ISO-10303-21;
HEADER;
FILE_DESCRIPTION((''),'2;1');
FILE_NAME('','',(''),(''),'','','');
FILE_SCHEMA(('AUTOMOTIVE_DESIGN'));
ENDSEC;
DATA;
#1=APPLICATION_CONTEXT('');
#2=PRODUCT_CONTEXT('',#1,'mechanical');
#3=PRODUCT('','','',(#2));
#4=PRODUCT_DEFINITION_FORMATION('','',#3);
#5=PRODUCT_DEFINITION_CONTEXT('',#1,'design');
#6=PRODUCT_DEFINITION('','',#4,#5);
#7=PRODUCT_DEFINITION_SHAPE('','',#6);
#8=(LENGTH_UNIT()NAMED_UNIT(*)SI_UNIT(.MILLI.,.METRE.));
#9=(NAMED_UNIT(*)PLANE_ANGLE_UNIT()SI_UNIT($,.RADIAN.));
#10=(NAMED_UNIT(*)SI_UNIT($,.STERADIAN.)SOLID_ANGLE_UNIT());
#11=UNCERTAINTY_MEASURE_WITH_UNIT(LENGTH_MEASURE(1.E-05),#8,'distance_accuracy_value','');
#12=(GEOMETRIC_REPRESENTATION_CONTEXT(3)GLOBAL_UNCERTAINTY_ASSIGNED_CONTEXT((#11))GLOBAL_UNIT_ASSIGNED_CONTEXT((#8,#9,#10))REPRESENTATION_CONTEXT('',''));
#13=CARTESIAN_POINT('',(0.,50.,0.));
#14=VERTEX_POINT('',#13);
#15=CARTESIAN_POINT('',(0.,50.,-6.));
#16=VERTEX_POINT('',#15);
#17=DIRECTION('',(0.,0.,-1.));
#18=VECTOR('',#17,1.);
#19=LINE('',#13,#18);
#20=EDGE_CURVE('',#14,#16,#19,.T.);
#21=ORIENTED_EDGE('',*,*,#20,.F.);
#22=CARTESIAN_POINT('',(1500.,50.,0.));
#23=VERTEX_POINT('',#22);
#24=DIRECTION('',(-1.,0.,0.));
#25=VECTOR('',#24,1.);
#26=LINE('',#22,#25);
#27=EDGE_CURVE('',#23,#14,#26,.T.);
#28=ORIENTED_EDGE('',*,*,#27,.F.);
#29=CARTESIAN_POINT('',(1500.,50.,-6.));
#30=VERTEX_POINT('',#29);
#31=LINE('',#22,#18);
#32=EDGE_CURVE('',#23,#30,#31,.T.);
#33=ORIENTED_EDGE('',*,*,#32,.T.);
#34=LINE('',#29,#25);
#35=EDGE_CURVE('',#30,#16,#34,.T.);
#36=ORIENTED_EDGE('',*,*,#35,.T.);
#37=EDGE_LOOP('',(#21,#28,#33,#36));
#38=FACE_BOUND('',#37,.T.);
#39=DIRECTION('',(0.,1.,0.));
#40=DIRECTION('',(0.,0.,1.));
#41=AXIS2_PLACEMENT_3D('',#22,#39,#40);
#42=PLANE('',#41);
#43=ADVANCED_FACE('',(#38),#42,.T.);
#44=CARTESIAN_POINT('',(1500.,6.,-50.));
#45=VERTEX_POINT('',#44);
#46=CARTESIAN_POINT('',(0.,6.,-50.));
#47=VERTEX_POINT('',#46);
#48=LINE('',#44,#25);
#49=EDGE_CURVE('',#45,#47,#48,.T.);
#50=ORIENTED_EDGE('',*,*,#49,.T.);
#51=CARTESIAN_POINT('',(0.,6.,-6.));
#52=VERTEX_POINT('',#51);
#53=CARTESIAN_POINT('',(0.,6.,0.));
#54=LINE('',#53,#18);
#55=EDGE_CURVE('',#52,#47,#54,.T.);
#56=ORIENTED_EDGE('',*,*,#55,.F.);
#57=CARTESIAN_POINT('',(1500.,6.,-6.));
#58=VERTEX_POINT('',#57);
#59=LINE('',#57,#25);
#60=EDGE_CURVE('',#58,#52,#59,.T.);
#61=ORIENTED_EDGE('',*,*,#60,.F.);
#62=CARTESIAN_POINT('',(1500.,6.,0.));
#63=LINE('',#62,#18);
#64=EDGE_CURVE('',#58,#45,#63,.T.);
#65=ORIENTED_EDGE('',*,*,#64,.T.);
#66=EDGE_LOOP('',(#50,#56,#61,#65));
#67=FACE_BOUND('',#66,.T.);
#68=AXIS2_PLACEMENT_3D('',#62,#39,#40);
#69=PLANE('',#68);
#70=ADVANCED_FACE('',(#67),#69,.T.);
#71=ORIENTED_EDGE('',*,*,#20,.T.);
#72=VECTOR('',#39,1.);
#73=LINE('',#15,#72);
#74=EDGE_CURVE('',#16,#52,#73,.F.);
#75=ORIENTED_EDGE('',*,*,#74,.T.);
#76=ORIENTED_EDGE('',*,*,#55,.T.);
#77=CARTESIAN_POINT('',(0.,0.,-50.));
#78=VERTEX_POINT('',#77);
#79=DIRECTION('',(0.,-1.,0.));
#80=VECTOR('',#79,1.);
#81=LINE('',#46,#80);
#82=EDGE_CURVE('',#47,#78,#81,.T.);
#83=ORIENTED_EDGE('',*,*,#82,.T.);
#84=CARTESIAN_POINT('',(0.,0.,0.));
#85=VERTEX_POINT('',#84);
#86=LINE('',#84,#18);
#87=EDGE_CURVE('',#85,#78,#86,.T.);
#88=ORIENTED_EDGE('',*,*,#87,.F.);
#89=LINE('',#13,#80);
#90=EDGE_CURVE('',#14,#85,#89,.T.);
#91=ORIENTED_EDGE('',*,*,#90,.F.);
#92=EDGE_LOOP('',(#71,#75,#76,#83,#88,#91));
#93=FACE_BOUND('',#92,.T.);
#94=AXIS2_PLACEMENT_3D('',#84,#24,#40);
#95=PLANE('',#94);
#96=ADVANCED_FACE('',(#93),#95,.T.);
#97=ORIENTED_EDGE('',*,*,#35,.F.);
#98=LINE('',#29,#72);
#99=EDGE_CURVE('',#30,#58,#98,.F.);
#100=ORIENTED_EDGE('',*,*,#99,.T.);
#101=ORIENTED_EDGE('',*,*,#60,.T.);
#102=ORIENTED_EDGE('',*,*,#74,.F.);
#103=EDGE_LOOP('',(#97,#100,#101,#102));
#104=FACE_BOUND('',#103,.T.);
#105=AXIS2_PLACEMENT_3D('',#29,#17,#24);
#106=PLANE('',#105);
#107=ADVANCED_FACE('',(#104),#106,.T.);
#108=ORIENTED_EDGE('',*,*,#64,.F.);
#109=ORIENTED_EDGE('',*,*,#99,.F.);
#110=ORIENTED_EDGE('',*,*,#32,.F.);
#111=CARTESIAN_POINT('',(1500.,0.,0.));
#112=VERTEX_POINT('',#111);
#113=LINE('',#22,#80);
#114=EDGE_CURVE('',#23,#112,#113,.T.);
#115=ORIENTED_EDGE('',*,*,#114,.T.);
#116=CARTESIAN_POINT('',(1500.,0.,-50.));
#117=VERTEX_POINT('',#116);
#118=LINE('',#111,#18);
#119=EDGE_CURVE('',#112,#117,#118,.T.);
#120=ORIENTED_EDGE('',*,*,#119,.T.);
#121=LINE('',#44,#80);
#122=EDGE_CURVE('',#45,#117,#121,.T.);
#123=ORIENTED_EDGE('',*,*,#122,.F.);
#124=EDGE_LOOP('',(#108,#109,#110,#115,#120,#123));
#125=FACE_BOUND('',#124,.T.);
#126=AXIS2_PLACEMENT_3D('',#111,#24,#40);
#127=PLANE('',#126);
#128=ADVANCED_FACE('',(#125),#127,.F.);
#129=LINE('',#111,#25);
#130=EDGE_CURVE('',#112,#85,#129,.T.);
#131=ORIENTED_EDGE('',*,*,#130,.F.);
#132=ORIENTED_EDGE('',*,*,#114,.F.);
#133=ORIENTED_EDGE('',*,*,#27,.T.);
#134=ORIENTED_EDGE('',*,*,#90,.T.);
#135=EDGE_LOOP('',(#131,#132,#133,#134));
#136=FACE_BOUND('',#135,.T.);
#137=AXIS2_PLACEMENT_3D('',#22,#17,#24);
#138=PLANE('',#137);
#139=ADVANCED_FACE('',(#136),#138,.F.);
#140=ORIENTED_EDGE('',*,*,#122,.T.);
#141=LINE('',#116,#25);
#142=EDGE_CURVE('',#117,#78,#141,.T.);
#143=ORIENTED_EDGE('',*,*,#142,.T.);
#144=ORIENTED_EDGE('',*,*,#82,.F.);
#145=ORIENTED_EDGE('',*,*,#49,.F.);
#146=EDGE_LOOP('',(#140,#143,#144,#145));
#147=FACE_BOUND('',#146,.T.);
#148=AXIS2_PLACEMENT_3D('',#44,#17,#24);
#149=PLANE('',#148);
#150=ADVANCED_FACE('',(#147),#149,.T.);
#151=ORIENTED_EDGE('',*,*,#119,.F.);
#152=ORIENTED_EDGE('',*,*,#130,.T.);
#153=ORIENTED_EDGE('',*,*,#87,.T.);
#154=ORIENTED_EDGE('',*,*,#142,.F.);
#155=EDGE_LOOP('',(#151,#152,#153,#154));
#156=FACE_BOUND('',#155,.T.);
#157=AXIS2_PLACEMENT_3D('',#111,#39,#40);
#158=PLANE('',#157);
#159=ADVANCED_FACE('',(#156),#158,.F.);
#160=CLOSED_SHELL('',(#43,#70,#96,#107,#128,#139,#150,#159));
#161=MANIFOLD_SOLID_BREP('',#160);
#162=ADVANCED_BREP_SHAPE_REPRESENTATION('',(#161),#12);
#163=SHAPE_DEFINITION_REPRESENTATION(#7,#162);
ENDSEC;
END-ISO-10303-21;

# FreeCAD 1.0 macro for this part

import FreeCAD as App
import Part
import Sketcher
from FreeCAD import Vector

doc = App.newDocument("Part")
params = doc.addObject("Spreadsheet::Sheet", "Params")
for row, (alias, value) in enumerate([
    ("sketch1_width", "50 mm"),
    ("sketch1_width2", "6 mm"),
    ("pad1_length", "1500 mm"),
], start=1):
    params.set(f"A{row}", alias)
    params.set(f"B{row}", "=" + value)
    params.setAlias(f"B{row}", alias)

body = doc.addObject("PartDesign::Body", "Body")

# Sketch on YZ plane
sketch1 = body.newObject("Sketcher::SketchObject", "Sketch")
sketch1.AttachmentSupport = (doc.getObject("YZ_Plane"), [""])
sketch1.MapMode = "FlatFace"
sketch1.addGeometry(Part.LineSegment(Vector(50, 0, 0), Vector(0, 0, 0)), False)
sketch1.addGeometry(Part.LineSegment(Vector(0, 0, 0), Vector(0, -50, 0)), False)
sketch1.addGeometry(Part.LineSegment(Vector(0, -50, 0), Vector(6, -50, 0)), False)
sketch1.addGeometry(Part.LineSegment(Vector(6, -50, 0), Vector(6, -6, 0)), False)
sketch1.addGeometry(Part.LineSegment(Vector(6, -6, 0), Vector(50, -6, 0)), False)
sketch1.addGeometry(Part.LineSegment(Vector(50, -6, 0), Vector(50, 0, 0)), False)
sketch1.addConstraint(Sketcher.Constraint("Coincident", 0, 2, 1, 1))
sketch1.addConstraint(Sketcher.Constraint("Coincident", 1, 2, 2, 1))
sketch1.addConstraint(Sketcher.Constraint("Coincident", 2, 2, 3, 1))
sketch1.addConstraint(Sketcher.Constraint("Coincident", 3, 2, 4, 1))
sketch1.addConstraint(Sketcher.Constraint("Coincident", 4, 2, 5, 1))
sketch1.addConstraint(Sketcher.Constraint("Coincident", 5, 2, 0, 1))
sketch1.addConstraint(Sketcher.Constraint("Horizontal", 0))
sketch1.addConstraint(Sketcher.Constraint("Vertical", 1))
sketch1.addConstraint(Sketcher.Constraint("Horizontal", 2))
sketch1.addConstraint(Sketcher.Constraint("Vertical", 3))
sketch1.addConstraint(Sketcher.Constraint("Horizontal", 4))
sketch1.addConstraint(Sketcher.Constraint("Vertical", 5))
sketch1.addConstraint(Sketcher.Constraint("Coincident", 0, 2, -1, 1))
sketch1.addConstraint(Sketcher.Constraint("Equal", 0, 1))
sketch1.addConstraint(Sketcher.Constraint("Equal", 4, 3))
sketch1.addConstraint(Sketcher.Constraint("DistanceX", 0, 2, 0, 1, 50.0))
sketch1.addConstraint(Sketcher.Constraint("DistanceX", 2, 1, 2, 2, 6.0))
sketch1.setExpression("Constraints[15]", "Params.sketch1_width")
sketch1.setExpression("Constraints[16]", "Params.sketch1_width2")
pad1 = body.newObject("PartDesign::Pad", "Pad")
pad1.Profile = sketch1
pad1.setExpression("Length", "Params.pad1_length")

doc.recompute()
